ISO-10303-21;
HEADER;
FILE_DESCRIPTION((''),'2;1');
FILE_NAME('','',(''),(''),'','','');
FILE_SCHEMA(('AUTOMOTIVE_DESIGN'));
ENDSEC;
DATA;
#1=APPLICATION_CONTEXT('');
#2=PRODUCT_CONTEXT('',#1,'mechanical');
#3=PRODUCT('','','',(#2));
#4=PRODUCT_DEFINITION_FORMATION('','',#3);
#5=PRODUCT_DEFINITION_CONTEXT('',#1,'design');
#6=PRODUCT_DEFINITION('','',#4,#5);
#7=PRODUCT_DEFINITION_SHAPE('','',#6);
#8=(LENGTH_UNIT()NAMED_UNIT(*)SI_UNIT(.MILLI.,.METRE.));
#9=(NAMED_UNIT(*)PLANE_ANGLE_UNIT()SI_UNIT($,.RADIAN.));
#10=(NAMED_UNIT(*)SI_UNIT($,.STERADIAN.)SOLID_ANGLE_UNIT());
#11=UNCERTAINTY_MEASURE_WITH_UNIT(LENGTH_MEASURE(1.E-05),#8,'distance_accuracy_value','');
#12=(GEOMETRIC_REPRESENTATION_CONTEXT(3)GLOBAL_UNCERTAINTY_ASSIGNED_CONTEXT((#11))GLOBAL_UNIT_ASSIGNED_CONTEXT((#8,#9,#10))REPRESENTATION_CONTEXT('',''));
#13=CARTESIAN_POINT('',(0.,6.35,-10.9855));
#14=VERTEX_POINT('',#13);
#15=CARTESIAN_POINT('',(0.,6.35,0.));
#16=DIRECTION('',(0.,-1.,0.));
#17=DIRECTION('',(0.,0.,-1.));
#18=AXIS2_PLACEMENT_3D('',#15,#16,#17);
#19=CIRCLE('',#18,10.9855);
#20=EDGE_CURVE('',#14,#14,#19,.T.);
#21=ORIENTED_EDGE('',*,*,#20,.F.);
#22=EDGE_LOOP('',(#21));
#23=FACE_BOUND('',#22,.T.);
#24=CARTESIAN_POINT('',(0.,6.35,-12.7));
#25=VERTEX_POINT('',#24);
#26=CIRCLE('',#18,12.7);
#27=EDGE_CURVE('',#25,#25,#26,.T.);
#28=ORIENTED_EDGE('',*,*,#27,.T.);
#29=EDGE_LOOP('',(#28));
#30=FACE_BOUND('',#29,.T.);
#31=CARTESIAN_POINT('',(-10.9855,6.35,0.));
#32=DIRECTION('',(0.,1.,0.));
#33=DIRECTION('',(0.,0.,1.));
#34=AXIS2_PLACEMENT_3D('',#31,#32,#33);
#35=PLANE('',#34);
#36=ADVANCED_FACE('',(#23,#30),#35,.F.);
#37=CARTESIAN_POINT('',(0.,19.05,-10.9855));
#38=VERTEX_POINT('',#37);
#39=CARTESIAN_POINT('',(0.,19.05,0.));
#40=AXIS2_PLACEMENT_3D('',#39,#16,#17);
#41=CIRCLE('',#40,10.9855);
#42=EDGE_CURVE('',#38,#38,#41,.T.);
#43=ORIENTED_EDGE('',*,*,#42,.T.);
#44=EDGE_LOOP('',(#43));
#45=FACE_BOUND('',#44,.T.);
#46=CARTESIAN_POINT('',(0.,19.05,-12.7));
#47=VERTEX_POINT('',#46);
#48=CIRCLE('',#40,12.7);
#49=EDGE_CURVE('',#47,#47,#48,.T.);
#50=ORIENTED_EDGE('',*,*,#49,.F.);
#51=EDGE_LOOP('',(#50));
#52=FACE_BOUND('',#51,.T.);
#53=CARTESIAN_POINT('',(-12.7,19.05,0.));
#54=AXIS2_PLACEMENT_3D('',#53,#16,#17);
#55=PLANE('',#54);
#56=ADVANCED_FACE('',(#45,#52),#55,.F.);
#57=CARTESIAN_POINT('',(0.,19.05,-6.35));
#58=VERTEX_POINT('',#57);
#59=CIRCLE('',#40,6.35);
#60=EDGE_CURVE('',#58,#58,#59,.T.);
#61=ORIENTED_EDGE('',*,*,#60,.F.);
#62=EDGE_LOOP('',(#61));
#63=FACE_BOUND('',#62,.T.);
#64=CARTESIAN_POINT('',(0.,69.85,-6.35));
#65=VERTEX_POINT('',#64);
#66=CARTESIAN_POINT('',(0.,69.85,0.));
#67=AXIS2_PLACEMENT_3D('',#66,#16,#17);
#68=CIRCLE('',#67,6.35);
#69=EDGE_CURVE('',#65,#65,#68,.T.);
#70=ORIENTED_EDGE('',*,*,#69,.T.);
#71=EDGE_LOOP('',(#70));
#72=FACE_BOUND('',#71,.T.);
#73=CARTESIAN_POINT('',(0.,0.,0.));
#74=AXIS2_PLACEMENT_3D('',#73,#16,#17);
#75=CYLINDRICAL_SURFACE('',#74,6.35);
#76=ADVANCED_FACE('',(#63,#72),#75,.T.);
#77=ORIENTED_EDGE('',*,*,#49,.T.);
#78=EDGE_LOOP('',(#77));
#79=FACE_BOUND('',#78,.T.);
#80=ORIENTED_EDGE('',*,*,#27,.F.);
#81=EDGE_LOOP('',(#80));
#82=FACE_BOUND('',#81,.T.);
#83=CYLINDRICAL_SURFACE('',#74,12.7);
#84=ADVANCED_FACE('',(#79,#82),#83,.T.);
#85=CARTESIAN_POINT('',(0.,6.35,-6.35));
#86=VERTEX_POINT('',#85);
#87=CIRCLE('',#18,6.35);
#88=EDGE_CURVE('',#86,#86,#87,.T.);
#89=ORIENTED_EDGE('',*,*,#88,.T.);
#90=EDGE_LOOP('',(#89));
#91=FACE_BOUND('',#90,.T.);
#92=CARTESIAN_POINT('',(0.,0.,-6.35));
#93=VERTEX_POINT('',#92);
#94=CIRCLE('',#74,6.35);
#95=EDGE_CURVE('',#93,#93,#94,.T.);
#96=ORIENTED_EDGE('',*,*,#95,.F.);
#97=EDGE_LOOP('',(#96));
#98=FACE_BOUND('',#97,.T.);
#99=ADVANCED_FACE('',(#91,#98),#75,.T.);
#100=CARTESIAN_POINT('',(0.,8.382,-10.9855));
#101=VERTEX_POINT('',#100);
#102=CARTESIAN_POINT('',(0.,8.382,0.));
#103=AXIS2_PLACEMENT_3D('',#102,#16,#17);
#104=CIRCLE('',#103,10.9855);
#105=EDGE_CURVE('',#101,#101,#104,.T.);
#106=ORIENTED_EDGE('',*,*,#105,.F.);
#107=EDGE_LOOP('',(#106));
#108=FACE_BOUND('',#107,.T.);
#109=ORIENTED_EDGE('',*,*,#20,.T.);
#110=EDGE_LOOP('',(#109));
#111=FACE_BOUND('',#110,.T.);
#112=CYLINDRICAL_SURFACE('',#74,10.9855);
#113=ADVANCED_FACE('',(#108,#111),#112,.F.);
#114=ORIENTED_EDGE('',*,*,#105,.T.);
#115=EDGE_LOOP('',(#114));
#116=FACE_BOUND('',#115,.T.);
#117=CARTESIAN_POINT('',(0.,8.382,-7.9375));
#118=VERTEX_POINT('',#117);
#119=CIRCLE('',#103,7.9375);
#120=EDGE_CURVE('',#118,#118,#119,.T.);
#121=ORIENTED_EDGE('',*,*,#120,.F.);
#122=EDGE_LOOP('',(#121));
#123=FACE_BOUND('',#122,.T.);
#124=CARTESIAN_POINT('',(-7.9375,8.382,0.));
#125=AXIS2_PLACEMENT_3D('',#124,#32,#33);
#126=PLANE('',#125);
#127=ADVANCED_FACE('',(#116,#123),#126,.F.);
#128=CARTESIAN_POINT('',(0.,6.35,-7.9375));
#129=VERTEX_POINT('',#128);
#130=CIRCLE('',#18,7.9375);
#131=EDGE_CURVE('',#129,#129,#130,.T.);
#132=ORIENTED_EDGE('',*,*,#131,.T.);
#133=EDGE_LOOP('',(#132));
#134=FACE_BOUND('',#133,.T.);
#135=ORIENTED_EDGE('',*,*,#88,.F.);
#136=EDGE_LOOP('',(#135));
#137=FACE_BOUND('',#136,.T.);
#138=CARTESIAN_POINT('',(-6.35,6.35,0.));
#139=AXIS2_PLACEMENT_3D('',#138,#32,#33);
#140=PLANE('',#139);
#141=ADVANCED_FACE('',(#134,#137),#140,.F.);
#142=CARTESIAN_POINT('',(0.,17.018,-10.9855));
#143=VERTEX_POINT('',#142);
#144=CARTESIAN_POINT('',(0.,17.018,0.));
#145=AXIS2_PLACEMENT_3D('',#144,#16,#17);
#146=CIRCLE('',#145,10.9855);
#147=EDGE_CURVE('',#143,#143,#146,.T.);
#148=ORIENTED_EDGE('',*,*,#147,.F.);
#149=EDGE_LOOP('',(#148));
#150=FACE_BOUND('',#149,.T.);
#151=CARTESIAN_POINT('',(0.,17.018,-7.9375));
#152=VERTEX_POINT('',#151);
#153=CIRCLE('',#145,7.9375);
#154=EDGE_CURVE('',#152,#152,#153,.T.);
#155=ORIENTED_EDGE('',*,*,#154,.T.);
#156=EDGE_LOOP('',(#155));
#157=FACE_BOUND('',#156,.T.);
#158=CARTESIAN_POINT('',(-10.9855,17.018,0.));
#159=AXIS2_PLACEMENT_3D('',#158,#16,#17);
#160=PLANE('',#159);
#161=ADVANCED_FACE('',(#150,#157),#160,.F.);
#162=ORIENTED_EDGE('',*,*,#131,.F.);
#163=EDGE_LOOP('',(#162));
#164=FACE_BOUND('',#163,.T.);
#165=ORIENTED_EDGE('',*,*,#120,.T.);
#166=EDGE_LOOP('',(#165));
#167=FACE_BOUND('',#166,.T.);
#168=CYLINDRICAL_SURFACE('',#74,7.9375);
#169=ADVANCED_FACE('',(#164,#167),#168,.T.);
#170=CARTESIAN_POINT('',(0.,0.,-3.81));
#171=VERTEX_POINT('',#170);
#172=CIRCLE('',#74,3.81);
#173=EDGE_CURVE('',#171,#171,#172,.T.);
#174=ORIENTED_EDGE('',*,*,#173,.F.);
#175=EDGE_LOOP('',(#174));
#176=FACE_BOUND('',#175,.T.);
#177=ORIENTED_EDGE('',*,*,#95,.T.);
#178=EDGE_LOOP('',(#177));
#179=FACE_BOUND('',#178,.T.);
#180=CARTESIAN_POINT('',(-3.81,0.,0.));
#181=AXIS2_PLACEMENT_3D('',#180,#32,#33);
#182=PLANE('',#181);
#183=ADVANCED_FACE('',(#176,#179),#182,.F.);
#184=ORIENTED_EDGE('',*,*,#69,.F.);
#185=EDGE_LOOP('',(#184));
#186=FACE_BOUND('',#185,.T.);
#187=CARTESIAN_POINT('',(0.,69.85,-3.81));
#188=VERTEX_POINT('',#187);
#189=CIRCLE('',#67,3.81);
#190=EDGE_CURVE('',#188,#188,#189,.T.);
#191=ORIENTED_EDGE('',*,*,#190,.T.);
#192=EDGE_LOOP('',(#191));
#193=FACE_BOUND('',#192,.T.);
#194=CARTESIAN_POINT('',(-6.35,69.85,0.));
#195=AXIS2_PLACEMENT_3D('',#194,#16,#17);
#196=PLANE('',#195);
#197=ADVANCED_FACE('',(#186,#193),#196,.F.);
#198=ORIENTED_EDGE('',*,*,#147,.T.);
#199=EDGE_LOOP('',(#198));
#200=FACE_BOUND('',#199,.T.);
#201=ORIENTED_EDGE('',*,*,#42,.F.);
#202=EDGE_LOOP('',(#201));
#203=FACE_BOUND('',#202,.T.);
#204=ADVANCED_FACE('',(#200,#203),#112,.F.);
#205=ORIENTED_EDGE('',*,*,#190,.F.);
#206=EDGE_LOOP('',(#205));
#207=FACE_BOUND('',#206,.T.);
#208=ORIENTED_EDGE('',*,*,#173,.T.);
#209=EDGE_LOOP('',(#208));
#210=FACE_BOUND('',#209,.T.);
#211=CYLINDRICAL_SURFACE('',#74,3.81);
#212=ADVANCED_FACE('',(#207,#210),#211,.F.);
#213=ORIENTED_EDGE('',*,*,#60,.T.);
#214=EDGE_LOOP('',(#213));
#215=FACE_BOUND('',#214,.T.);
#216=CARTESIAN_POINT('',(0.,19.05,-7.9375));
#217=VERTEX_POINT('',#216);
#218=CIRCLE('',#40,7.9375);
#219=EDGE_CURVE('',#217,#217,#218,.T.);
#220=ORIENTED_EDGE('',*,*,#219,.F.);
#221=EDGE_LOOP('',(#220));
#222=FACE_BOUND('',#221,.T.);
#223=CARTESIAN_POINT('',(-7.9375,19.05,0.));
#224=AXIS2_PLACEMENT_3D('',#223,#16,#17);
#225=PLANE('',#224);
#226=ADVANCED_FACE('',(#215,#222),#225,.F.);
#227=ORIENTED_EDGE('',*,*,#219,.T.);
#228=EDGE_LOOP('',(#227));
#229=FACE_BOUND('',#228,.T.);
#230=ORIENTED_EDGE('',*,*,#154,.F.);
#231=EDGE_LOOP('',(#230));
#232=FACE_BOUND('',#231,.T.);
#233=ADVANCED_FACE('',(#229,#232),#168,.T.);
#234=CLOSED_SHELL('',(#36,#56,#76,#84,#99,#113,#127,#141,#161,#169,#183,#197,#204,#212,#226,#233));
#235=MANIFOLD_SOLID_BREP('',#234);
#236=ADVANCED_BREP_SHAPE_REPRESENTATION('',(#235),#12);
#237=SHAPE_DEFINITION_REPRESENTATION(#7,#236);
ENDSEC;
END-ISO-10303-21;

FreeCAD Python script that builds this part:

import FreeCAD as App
import Part
import Sketcher
from FreeCAD import Vector
Q = App.Units.Quantity

doc = App.newDocument("Part")
body = doc.addObject("PartDesign::Body", "Body")

# Sketch on XY plane
sketch1 = doc.addObject("Sketcher::SketchObject", "Sketch")
body.addObject(sketch1)
sketch1.AttachmentSupport = (doc.XY_Plane, [""])
sketch1.MapMode = "FlatFace"
sketch1.addGeometry(Part.LineSegment(Vector(-6.3, 0, 0), Vector(-3.8, 0, 0)), False)
sketch1.addGeometry(Part.LineSegment(Vector(-3.8, 0, 0), Vector(-3.8, 69.8, 0)), False)
sketch1.addGeometry(Part.LineSegment(Vector(-3.8, 69.8, 0), Vector(-6.3, 69.8, 0)), False)
sketch1.addGeometry(Part.LineSegment(Vector(-6.3, 69.8, 0), Vector(-6.3, 19.1, 0)), False)
sketch1.addGeometry(Part.LineSegment(Vector(-6.3, 19.1, 0), Vector(-7.9, 19.1, 0)), False)
sketch1.addGeometry(Part.LineSegment(Vector(-7.9, 19.1, 0), Vector(-7.9, 17, 0)), False)
sketch1.addGeometry(Part.LineSegment(Vector(-7.9, 17, 0), Vector(-11, 17, 0)), False)
sketch1.addGeometry(Part.LineSegment(Vector(-11, 17, 0), Vector(-11, 19.1, 0)), False)
sketch1.addGeometry(Part.LineSegment(Vector(-11, 19.1, 0), Vector(-12.7, 19.1, 0)), False)
sketch1.addGeometry(Part.LineSegment(Vector(-12.7, 19.1, 0), Vector(-12.7, 6.3, 0)), False)
sketch1.addGeometry(Part.LineSegment(Vector(-12.7, 6.3, 0), Vector(-11, 6.3, 0)), False)
sketch1.addGeometry(Part.LineSegment(Vector(-11, 6.3, 0), Vector(-11, 8.4, 0)), False)
sketch1.addGeometry(Part.LineSegment(Vector(-11, 8.4, 0), Vector(-7.9, 8.4, 0)), False)
sketch1.addGeometry(Part.LineSegment(Vector(-7.9, 8.4, 0), Vector(-7.9, 6.3, 0)), False)
sketch1.addGeometry(Part.LineSegment(Vector(-7.9, 6.3, 0), Vector(-6.3, 6.3, 0)), False)
sketch1.addGeometry(Part.LineSegment(Vector(-6.3, 6.3, 0), Vector(-6.3, 0, 0)), False)
sketch1.addConstraint(Sketcher.Constraint("Coincident", 0, 2, 1, 1))
sketch1.addConstraint(Sketcher.Constraint("Coincident", 1, 2, 2, 1))
sketch1.addConstraint(Sketcher.Constraint("Coincident", 2, 2, 3, 1))
sketch1.addConstraint(Sketcher.Constraint("Coincident", 3, 2, 4, 1))
sketch1.addConstraint(Sketcher.Constraint("Coincident", 4, 2, 5, 1))
sketch1.addConstraint(Sketcher.Constraint("Coincident", 5, 2, 6, 1))
sketch1.addConstraint(Sketcher.Constraint("Coincident", 6, 2, 7, 1))
sketch1.addConstraint(Sketcher.Constraint("Coincident", 7, 2, 8, 1))
sketch1.addConstraint(Sketcher.Constraint("Coincident", 8, 2, 9, 1))
sketch1.addConstraint(Sketcher.Constraint("Coincident", 9, 2, 10, 1))
sketch1.addConstraint(Sketcher.Constraint("Coincident", 10, 2, 11, 1))
sketch1.addConstraint(Sketcher.Constraint("Coincident", 11, 2, 12, 1))
sketch1.addConstraint(Sketcher.Constraint("Coincident", 12, 2, 13, 1))
sketch1.addConstraint(Sketcher.Constraint("Coincident", 13, 2, 14, 1))
sketch1.addConstraint(Sketcher.Constraint("Coincident", 14, 2, 15, 1))
sketch1.addConstraint(Sketcher.Constraint("Coincident", 15, 2, 0, 1))
sketch1.addConstraint(Sketcher.Constraint("Horizontal", 0))
sketch1.addConstraint(Sketcher.Constraint("Vertical", 1))
sketch1.addConstraint(Sketcher.Constraint("Horizontal", 2))
sketch1.addConstraint(Sketcher.Constraint("Vertical", 3))
sketch1.addConstraint(Sketcher.Constraint("Horizontal", 4))
sketch1.addConstraint(Sketcher.Constraint("Vertical", 5))
sketch1.addConstraint(Sketcher.Constraint("Horizontal", 6))
sketch1.addConstraint(Sketcher.Constraint("Vertical", 7))
sketch1.addConstraint(Sketcher.Constraint("Horizontal", 8))
sketch1.addConstraint(Sketcher.Constraint("Vertical", 9))
sketch1.addConstraint(Sketcher.Constraint("Horizontal", 10))
sketch1.addConstraint(Sketcher.Constraint("Vertical", 11))
sketch1.addConstraint(Sketcher.Constraint("Horizontal", 12))
sketch1.addConstraint(Sketcher.Constraint("Vertical", 13))
sketch1.addConstraint(Sketcher.Constraint("Horizontal", 14))
sketch1.addConstraint(Sketcher.Constraint("Vertical", 15))
sketch1.addConstraint(Sketcher.Constraint("PointOnObject", 0, 2, -1))
sketch1.addConstraint(Sketcher.Constraint("Horizontal", 4, 2, 7, 2))
sketch1.addConstraint(Sketcher.Constraint("Horizontal", 10, 2, 13, 2))
sketch1.addConstraint(Sketcher.Constraint("Vertical", 7, 2, 10, 2))
sketch1.addConstraint(Sketcher.Constraint("Vertical", 5, 2, 12, 2))
sketch1.addConstraint(Sketcher.Constraint("Vertical", 3, 2, 14, 2))
sketch1.addConstraint(Sketcher.Constraint("Equal", 7, 11))
sketch1.addConstraint(Sketcher.Constraint("DistanceY", 3, 2, 3, 1, Q("2 in")))
sketch1.addConstraint(Sketcher.Constraint("DistanceX", 0, 1, 0, 2, Q("0.1 in")))
sketch1.addConstraint(Sketcher.Constraint("DistanceY", 9, 2, 9, 1, Q("0.5 in")))
sketch1.addConstraint(Sketcher.Constraint("DistanceX", 6, 2, 6, 1, Q("0.12 in")))
sketch1.addConstraint(Sketcher.Constraint("DistanceY", 1, 1, 1, 2, Q("2.75 in")))
sketch1.addConstraint(Sketcher.Constraint("DistanceY", 5, 2, 5, 1, Q("0.08 in")))
sketch1.addConstraint(Sketcher.Constraint("DistanceX", 8, 2, -1, 1, Q("0.5 in")))
sketch1.addConstraint(Sketcher.Constraint("DistanceX", 4, 2, 4, 1, Q("0.0625 in")))
sketch1.addConstraint(Sketcher.Constraint("DistanceX", 0, 2, -1, 1, Q("0.15 in")))
revolution = doc.addObject("PartDesign::Revolution", "Revolution")
body.addObject(revolution)
revolution.Profile = sketch1
revolution.ReferenceAxis = (sketch1, ["V_Axis"])
revolution.Angle = 360

doc.recompute()
